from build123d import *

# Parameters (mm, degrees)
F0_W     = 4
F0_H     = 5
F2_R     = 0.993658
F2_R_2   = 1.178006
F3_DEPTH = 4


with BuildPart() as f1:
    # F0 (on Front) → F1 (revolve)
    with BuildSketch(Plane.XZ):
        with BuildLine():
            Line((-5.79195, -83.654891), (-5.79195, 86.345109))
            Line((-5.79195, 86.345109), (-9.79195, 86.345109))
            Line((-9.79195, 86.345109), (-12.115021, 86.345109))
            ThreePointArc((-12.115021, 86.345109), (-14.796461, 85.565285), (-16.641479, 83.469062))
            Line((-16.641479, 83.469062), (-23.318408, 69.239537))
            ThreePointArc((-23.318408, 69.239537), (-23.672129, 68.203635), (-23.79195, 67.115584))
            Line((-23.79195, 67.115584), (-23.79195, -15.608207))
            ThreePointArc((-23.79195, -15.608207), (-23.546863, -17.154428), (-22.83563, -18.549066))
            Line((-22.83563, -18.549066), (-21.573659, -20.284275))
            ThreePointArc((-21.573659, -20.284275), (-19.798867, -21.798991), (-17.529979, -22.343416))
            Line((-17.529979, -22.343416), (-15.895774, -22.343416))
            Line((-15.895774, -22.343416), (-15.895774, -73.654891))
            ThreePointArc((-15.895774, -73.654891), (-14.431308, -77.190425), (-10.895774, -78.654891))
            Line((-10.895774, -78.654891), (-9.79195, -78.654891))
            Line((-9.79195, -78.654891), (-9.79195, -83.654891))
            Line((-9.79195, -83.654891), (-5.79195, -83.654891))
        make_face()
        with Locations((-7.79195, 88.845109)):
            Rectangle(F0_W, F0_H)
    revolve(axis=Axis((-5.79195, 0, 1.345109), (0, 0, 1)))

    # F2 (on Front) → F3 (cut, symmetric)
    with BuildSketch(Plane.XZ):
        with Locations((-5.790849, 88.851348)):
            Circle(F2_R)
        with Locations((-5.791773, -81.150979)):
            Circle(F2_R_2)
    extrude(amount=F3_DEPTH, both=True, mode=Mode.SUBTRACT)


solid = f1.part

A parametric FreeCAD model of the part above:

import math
import FreeCAD as App
import Part
import Sketcher
Q = App.Units.Quantity

doc = App.newDocument("Part")
body = doc.addObject("PartDesign::Body", "Body")

# Sketch on XZ plane
sketch1 = body.newObject("Sketcher::SketchObject", "Sketch")
sketch1.AttachmentSupport = (doc.getObject("XZ_Plane"), [""])
sketch1.MapMode = "FlatFace"
sketch1.addGeometry([
    Part.LineSegment(App.Vector(-5.8, -83.7, 0), App.Vector(-5.8, 91.3, 0)),  # 0
    Part.LineSegment(App.Vector(-5.8, 91.3, 0), App.Vector(-9.8, 91.3, 0)),  # 1
    Part.LineSegment(App.Vector(-9.8, 91.3, 0), App.Vector(-9.8, 86.3, 0)),  # 2
    Part.LineSegment(App.Vector(-9.8, 86.3, 0), App.Vector(-12.1, 86.3, 0)),  # 3
    Part.ArcOfCircle(Part.Circle(App.Vector(-12.1, 81.3, 0), App.Vector(0, 0, 1), 5), math.radians(90), math.radians(155)),  # 4
    Part.LineSegment(App.Vector(-16.6, 83.5, 0), App.Vector(-23.3, 69.2, 0)),  # 5
    Part.ArcOfCircle(Part.Circle(App.Vector(-18.8, 67.1, 0), App.Vector(0, 0, 1), 5), math.radians(155), math.radians(180)),  # 6
    Part.LineSegment(App.Vector(-23.8, 67.1, 0), App.Vector(-23.8, -15.6, 0)),  # 7
    Part.ArcOfCircle(Part.Circle(App.Vector(-18.8, -15.6, 0), App.Vector(0, 0, 1), 5), math.radians(-180), math.radians(-144)),  # 8
    Part.LineSegment(App.Vector(-22.8, -18.5, 0), App.Vector(-21.6, -20.3, 0)),  # 9
    Part.ArcOfCircle(Part.Circle(App.Vector(-17.5, -17.3, 0), App.Vector(0, 0, 1), 5), math.radians(-144), math.radians(-90)),  # 10
    Part.LineSegment(App.Vector(-17.5, -22.3, 0), App.Vector(-15.9, -22.3, 0)),  # 11
    Part.LineSegment(App.Vector(-15.9, -22.3, 0), App.Vector(-15.9, -73.7, 0)),  # 12
    Part.ArcOfCircle(Part.Circle(App.Vector(-10.9, -73.7, 0), App.Vector(0, 0, 1), 5), math.radians(180), math.radians(270)),  # 13
    Part.LineSegment(App.Vector(-10.9, -78.7, 0), App.Vector(-9.8, -78.7, 0)),  # 14
    Part.LineSegment(App.Vector(-9.8, -78.7, 0), App.Vector(-9.8, -83.7, 0)),  # 15
    Part.LineSegment(App.Vector(-9.8, -83.7, 0), App.Vector(-5.8, -83.7, 0)),  # 16
], False)
sketch1.addGeometry(Part.LineSegment(App.Vector(-5.8, -83.7, 0), App.Vector(-5.8, 91.3, 0)), True)  # axis
sketch1.addConstraint([
    Sketcher.Constraint("Coincident", 0, 2, 1, 1),
    Sketcher.Constraint("Coincident", 1, 2, 2, 1),
    Sketcher.Constraint("Coincident", 2, 2, 3, 1),
    Sketcher.Constraint("Tangent", 3, 2, 4, 1),
    Sketcher.Constraint("Tangent", 4, 2, 5, 1),
    Sketcher.Constraint("Tangent", 5, 2, 6, 1),
    Sketcher.Constraint("Tangent", 6, 2, 7, 1),
    Sketcher.Constraint("Tangent", 7, 2, 8, 1),
    Sketcher.Constraint("Tangent", 8, 2, 9, 1),
    Sketcher.Constraint("Tangent", 9, 2, 10, 1),
    Sketcher.Constraint("Tangent", 10, 2, 11, 1),
    Sketcher.Constraint("Coincident", 11, 2, 12, 1),
    Sketcher.Constraint("Tangent", 12, 2, 13, 1),
    Sketcher.Constraint("Tangent", 13, 2, 14, 1),
    Sketcher.Constraint("Coincident", 14, 2, 15, 1),
    Sketcher.Constraint("Coincident", 15, 2, 16, 1),
    Sketcher.Constraint("Coincident", 16, 2, 0, 1),
    Sketcher.Constraint("Vertical", 0),
    Sketcher.Constraint("Horizontal", 1),
    Sketcher.Constraint("Vertical", 2),
    Sketcher.Constraint("Horizontal", 3),
    Sketcher.Constraint("Vertical", 7),
    Sketcher.Constraint("Horizontal", 11),
    Sketcher.Constraint("Vertical", 12),
    Sketcher.Constraint("Horizontal", 14),
    Sketcher.Constraint("Vertical", 15),
    Sketcher.Constraint("Horizontal", 16),
    Sketcher.Constraint("Vertical", 17),
    Sketcher.Constraint("Coincident", 17, 1, 16, 2),
    Sketcher.Constraint("Equal", 10, 13),
    Sketcher.Constraint("Horizontal", 1, 2, 17, 2),
    Sketcher.Constraint("Vertical", 2, 2, 14, 2),
    Sketcher.Constraint("Equal", 2, 15),
    Sketcher.Constraint("Radius", 10, Q("4.999999 mm")),
    Sketcher.Constraint("DistanceX", 1, 2, 1, 1, Q("4 mm")),
    Sketcher.Constraint("DistanceY", 0, 1, 0, 2, Q("175 mm")),
    Sketcher.Constraint("DistanceY", 2, 2, 2, 1, Q("5 mm")),
    Sketcher.Constraint("Radius", 6, Q("4.999988 mm")),
    Sketcher.Constraint("Radius", 4, Q("4.999996 mm")),
    Sketcher.Constraint("Radius", 8, Q("5.000005 mm")),
    Sketcher.Constraint("DistanceX", 3, 2, 3, 1, Q("2.323071 mm")),
    Sketcher.Constraint("DistanceY", 7, 2, 7, 1, Q("82.723791 mm")),
    Sketcher.Constraint("Distance", 9, Q("2.145582 mm")),
    Sketcher.Constraint("DistanceX", 11, 1, 11, 2, Q("1.634205 mm")),
    Sketcher.Constraint("DistanceX", 14, 1, 14, 2, Q("1.103824 mm")),
    Sketcher.Constraint("DistanceY", 12, 2, 12, 1, Q("51.311475 mm")),
    Sketcher.Constraint("DistanceX", 6, 3, -1, 1, Q("18.791962 mm")),
    Sketcher.Constraint("DistanceX", 10, 3, -1, 1, Q("17.52998 mm")),
    Sketcher.Constraint("DistanceY", 13, 3, -1, 1, Q("73.654891 mm")),
])
revolution = body.newObject("PartDesign::Revolution", "Revolution")
revolution.Profile = sketch1
revolution.ReferenceAxis = (sketch1, ["Axis0"])
revolution.Angle = 360

# Sketch on XZ plane
sketch2 = body.newObject("Sketcher::SketchObject", "Sketch001")
sketch2.AttachmentSupport = (doc.getObject("XZ_Plane"), [""])
sketch2.MapMode = "FlatFace"
sketch2.addGeometry([
    Part.Circle(App.Vector(-5.8, 88.9, 0), App.Vector(0, 0, 1), 1),
    Part.Circle(App.Vector(-5.8, -81.2, 0), App.Vector(0, 0, 1), 1.2),
], False)
sketch2.addConstraint([
    Sketcher.Constraint("Diameter", 0, Q("1.987316 mm")),
    Sketcher.Constraint("Diameter", 1, Q("2.356012 mm")),
    Sketcher.Constraint("DistanceX", 0, 3, -1, 1, Q("5.790849 mm")),
    Sketcher.Constraint("DistanceY", -1, 1, 0, 3, Q("88.851348 mm")),
    Sketcher.Constraint("DistanceY", 1, 3, -1, 1, Q("81.150979 mm")),
    Sketcher.Constraint("DistanceX", 1, 3, -1, 1, Q("5.791773 mm")),
])
pocket1 = body.newObject("PartDesign::Pocket", "Pocket")
pocket1.Profile = sketch2
pocket1.Length = 8
pocket1.Midplane = True

doc.recompute()
